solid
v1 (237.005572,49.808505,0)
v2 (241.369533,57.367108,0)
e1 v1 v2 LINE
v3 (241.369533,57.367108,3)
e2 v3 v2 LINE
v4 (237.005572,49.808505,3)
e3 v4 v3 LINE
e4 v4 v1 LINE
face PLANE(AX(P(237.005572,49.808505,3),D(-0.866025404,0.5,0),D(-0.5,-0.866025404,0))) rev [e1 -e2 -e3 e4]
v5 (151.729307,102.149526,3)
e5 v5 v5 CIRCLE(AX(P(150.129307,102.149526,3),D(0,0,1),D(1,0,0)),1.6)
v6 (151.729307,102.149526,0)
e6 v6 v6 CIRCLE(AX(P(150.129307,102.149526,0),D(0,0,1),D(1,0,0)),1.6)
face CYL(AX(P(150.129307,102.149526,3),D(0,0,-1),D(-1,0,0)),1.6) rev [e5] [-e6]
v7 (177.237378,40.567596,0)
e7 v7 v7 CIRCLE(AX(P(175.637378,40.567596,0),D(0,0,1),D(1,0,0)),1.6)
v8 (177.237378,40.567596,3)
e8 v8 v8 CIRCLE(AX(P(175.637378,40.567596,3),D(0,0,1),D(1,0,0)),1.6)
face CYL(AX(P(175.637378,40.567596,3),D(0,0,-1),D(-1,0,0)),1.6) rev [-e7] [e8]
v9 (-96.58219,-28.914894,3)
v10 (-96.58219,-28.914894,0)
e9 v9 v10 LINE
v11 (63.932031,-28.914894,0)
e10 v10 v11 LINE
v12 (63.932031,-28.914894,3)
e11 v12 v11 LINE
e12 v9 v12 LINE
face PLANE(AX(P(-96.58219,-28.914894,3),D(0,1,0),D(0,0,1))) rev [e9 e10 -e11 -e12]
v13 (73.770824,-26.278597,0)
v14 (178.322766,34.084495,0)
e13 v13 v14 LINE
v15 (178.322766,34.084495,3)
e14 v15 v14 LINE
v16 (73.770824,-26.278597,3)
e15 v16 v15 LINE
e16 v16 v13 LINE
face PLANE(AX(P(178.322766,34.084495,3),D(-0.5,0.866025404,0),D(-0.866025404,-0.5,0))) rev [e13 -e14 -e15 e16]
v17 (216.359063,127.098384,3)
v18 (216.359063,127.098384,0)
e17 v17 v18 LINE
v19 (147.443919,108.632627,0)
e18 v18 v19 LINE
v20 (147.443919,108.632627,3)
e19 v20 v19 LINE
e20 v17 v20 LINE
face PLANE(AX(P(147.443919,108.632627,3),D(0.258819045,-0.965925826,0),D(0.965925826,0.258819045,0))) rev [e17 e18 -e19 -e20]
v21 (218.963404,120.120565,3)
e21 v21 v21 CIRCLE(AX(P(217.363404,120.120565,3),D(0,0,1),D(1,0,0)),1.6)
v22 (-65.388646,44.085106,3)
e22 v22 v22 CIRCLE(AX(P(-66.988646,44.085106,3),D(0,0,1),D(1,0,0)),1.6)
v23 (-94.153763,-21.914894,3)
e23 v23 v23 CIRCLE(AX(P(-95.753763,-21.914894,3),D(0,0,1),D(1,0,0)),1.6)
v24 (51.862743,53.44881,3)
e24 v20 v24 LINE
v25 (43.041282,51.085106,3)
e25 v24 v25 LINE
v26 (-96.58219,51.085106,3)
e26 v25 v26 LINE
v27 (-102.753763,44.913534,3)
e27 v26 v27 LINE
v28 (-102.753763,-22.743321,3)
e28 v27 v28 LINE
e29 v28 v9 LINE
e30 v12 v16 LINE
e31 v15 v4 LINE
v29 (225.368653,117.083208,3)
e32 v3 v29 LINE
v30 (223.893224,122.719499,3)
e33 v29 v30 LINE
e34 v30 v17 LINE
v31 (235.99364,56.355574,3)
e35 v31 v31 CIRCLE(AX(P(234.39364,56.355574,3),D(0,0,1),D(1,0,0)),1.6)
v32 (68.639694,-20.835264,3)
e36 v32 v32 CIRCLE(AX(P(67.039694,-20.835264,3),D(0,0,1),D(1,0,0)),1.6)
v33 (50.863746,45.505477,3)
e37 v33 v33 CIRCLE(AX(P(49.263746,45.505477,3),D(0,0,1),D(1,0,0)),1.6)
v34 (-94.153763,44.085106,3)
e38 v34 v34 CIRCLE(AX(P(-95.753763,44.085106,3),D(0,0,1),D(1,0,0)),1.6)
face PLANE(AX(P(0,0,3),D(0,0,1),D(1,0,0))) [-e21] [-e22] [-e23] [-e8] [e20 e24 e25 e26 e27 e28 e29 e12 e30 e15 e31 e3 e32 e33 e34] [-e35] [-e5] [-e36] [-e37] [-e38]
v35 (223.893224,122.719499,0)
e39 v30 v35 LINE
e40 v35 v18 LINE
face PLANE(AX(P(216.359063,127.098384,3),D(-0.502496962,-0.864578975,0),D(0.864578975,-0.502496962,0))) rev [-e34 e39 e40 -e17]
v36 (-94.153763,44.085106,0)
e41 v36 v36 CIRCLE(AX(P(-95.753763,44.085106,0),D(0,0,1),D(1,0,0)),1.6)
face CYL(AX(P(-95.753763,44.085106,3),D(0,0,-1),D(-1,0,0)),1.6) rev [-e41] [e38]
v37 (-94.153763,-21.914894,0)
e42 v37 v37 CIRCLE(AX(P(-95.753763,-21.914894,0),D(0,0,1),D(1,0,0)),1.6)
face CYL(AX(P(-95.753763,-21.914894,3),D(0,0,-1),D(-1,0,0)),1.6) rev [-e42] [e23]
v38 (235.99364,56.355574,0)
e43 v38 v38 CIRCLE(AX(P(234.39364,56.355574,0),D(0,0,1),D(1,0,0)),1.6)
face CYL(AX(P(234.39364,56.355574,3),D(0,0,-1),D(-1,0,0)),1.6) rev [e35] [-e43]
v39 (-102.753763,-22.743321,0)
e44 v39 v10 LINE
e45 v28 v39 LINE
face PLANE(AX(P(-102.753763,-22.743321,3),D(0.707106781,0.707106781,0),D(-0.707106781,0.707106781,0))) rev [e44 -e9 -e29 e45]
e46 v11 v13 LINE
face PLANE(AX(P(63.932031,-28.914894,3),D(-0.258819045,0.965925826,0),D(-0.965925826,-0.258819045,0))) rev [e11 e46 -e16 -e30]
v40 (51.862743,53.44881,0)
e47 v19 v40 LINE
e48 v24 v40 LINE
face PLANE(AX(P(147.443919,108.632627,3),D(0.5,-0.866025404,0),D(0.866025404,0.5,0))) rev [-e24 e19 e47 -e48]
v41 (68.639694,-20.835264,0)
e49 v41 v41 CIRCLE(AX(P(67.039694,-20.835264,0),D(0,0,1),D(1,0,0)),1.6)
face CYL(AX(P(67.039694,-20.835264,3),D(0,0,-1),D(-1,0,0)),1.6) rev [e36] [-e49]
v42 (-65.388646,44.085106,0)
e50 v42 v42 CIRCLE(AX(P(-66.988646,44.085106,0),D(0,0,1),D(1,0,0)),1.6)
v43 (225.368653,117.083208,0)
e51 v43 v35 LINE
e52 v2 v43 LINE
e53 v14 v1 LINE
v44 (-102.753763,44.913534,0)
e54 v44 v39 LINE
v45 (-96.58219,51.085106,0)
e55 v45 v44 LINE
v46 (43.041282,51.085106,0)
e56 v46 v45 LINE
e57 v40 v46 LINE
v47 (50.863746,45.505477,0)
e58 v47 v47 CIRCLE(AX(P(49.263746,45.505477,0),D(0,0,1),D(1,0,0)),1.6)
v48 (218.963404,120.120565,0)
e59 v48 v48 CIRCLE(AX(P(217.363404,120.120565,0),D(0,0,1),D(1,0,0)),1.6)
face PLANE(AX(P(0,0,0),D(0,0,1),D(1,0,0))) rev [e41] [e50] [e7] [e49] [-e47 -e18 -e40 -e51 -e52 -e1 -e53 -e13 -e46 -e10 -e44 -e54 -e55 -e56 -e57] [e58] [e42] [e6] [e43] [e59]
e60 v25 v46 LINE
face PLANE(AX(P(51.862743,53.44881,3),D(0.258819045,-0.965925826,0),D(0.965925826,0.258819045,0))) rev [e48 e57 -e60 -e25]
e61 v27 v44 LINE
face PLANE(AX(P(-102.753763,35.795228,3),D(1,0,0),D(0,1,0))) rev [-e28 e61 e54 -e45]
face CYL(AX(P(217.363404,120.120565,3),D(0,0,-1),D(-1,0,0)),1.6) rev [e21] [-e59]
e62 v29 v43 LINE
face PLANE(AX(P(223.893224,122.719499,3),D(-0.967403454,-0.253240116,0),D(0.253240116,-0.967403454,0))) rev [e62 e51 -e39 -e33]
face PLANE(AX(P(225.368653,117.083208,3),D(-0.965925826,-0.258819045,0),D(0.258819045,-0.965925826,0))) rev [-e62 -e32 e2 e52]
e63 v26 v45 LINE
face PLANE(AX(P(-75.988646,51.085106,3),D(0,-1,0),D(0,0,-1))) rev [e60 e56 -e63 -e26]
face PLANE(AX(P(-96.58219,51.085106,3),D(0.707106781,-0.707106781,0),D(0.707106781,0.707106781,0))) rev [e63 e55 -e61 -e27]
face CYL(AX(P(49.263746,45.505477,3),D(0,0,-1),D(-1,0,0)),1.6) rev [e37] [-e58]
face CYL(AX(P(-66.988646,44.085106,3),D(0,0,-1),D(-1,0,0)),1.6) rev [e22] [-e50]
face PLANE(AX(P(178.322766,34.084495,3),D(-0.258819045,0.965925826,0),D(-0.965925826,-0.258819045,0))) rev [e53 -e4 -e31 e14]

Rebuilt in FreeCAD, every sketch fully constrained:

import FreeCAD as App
import Part
import Sketcher

V = App.Vector
Q = App.Units.Quantity


def add_polygon(sketch, points):
    """Adds a closed chain of lines whose ends are joined by coincident constraints."""
    first, n = sketch.GeometryCount, len(points)
    for a, b in zip(points, points[1:] + points[:1]):
        sketch.addGeometry(Part.LineSegment(App.Vector(*a, 0), App.Vector(*b, 0)), False)
    for i in range(n):
        sketch.addConstraint(Sketcher.Constraint("Coincident", first + i, 2, first + (i + 1) % n, 1))

doc = App.newDocument("Part")
body = doc.addObject("PartDesign::Body", "Body")

sketch1 = body.newObject("Sketcher::SketchObject", "Sketch")
sketch1.AttachmentSupport = (doc.getObject("XY_Plane"), [""])
sketch1.MapMode = "FlatFace"
add_polygon(sketch1, [(-96.58219, 51.085106), (-102.753763, 44.913534), (-102.753763, -22.743321), (-96.58219, -28.914894), (63.932031, -28.914894), (73.770824, -26.278597), (178.322766, 34.084495), (237.005572, 49.808505), (241.369533, 57.367108), (230.025902, 99.702117), (225.368653, 117.083208), (223.893224, 122.719499), (216.359063, 127.098384), (210.67022, 125.574064), (147.443919, 108.632627), (51.862743, 53.44881), (43.041282, 51.085106)])
sketch1.addGeometry(Part.Circle(V(-95.753763, -21.914894, 0), V(0, 0, 1), 1.6), False)
sketch1.addGeometry(Part.Circle(V(67.039694, -20.835264, 0), V(0, 0, 1), 1.6), False)
sketch1.addGeometry(Part.Circle(V(-95.753763, 44.085106, 0), V(0, 0, 1), 1.6), False)
sketch1.addGeometry(Part.Circle(V(-66.988646, 44.085106, 0), V(0, 0, 1), 1.6), False)
sketch1.addGeometry(Part.Circle(V(49.263746, 45.505477, 0), V(0, 0, 1), 1.6), False)
sketch1.addGeometry(Part.Circle(V(175.637378, 40.567596, 0), V(0, 0, 1), 1.6), False)
sketch1.addGeometry(Part.Circle(V(234.39364, 56.355574, 0), V(0, 0, 1), 1.6), False)
sketch1.addGeometry(Part.Circle(V(150.129307, 102.149526, 0), V(0, 0, 1), 1.6), False)
sketch1.addGeometry(Part.Circle(V(217.363404, 120.120565, 0), V(0, 0, 1), 1.6), False)
sketch1.addConstraint(Sketcher.Constraint("Vertical", 1))
sketch1.addConstraint(Sketcher.Constraint("Horizontal", 3))
sketch1.addConstraint(Sketcher.Constraint("Horizontal", 16))
sketch1.addConstraint(Sketcher.Constraint("Equal", 17, 18))
sketch1.addConstraint(Sketcher.Constraint("Equal", 18, 19))
sketch1.addConstraint(Sketcher.Constraint("Equal", 19, 20))
sketch1.addConstraint(Sketcher.Constraint("Equal", 20, 21))
sketch1.addConstraint(Sketcher.Constraint("Equal", 21, 22))
sketch1.addConstraint(Sketcher.Constraint("Equal", 22, 23))
sketch1.addConstraint(Sketcher.Constraint("Equal", 23, 24))
sketch1.addConstraint(Sketcher.Constraint("Equal", 24, 25))
sketch1.addConstraint(Sketcher.Constraint("Perpendicular", 0, 2))
sketch1.addConstraint(Sketcher.Constraint("Parallel", 4, 6))
sketch1.addConstraint(Sketcher.Constraint("Perpendicular", 6, 8))
sketch1.addConstraint(Sketcher.Constraint("Parallel", 8, 9))
sketch1.addConstraint(Sketcher.Constraint("Perpendicular", 9, 12))
sketch1.addConstraint(Sketcher.Constraint("Parallel", 12, 13))
sketch1.addConstraint(Sketcher.Constraint("Parallel", 5, 14))
sketch1.addConstraint(Sketcher.Constraint("Parallel", 13, 15))
sketch1.addConstraint(Sketcher.Constraint("Horizontal", 19, 3, 20, 3))
sketch1.addConstraint(Sketcher.Constraint("Vertical", 17, 3, 19, 3))
sketch1.addConstraint(Sketcher.Constraint("Vertical", 2, 2, 16, 2))
sketch1.addConstraint(Sketcher.Constraint("Equal", 0, 2))
sketch1.addConstraint(Sketcher.Constraint("Equal", 2, 7))
sketch1.addConstraint(Sketcher.Constraint("Diameter", 17, Q("3.2 mm")))
sketch1.addConstraint(Sketcher.Constraint("Angle", 4, Q("15 deg")))
sketch1.addConstraint(Sketcher.Constraint("Angle", 5, Q("30 deg")))
sketch1.addConstraint(Sketcher.Constraint("Angle", 7, Q("60 deg")))
sketch1.addConstraint(Sketcher.Constraint("DistanceY", 17, 3, 19, 3, Q("66 mm")))
sketch1.addConstraint(Sketcher.Constraint("DistanceX", 0, 2, 19, 3, Q("7 mm")))
sketch1.addConstraint(Sketcher.Constraint("DistanceY", 2, 2, 17, 3, Q("7 mm")))
sketch1.addConstraint(Sketcher.Constraint("DistanceY", 3, 2, 15, 2, Q("80 mm")))
sketch1.addConstraint(Sketcher.Constraint("DistanceX", 3, 1, 3, 2, Q("160.514221 mm")))
sketch1.addConstraint(Sketcher.Constraint("DistanceX", 16, 2, 16, 1, Q("139.623472 mm")))
sketch1.addConstraint(Sketcher.Constraint("DistanceX", -1, 1, 8, 2, Q("230.025902 mm")))
sketch1.addConstraint(Sketcher.Constraint("DistanceY", -1, 1, 10, 2, Q("122.719499 mm")))
sketch1.addConstraint(Sketcher.Constraint("DistanceY", 5, 2, 22, 3, Q("6.483101 mm")))
sketch1.addConstraint(Sketcher.Constraint("DistanceY", 7, 2, 9, 2, Q("59.7161 mm")))
sketch1.addConstraint(Sketcher.Constraint("DistanceY", 25, 3, 12, 2, Q("5.453498 mm")))
sketch1.addConstraint(Sketcher.Constraint("DistanceY", 24, 3, 13, 2, Q("6.483101 mm")))
sketch1.addConstraint(Sketcher.Constraint("DistanceX", 13, 2, 12, 2, Q("63.226302 mm")))
sketch1.addConstraint(Sketcher.Constraint("Distance", 4, Q("10.185868 mm")))
sketch1.addConstraint(Sketcher.Constraint("Distance", 6, Q("60.752912 mm")))
sketch1.addConstraint(Sketcher.Constraint("Distance", 9, Q("17.994229 mm")))
sketch1.addConstraint(Sketcher.Constraint("Distance", 15, Q("9.132648 mm")))
sketch1.addConstraint(Sketcher.Constraint("DistanceY", 1, 2, 1, 1, Q("67.656854 mm")))
sketch1.addConstraint(Sketcher.Constraint("DistanceX", -1, 1, 23, 3, Q("234.39364 mm")))
sketch1.addConstraint(Sketcher.Constraint("DistanceY", 1, 2, -1, 1, Q("22.743321 mm")))
sketch1.addConstraint(Sketcher.Constraint("DistanceX", 2, 2, -1, 1, Q("96.58219 mm")))
sketch1.addConstraint(Sketcher.Constraint("DistanceX", -1, 1, 12, 2, Q("210.67022 mm")))
sketch1.addConstraint(Sketcher.Constraint("DistanceY", 17, 3, 18, 3, Q("1.079629 mm")))
sketch1.addConstraint(Sketcher.Constraint("DistanceX", 20, 3, 18, 3, Q("134.02834 mm")))
sketch1.addConstraint(Sketcher.Constraint("DistanceX", 21, 3, 18, 3, Q("17.775948 mm")))
sketch1.addConstraint(Sketcher.Constraint("DistanceY", 18, 3, 21, 3, Q("66.340742 mm")))
sketch1.addConstraint(Sketcher.Constraint("DistanceX", 19, 3, 21, 3, Q("145.017509 mm")))
sketch1.addConstraint(Sketcher.Constraint("DistanceX", 21, 3, 22, 3, Q("126.373632 mm")))
sketch1.addConstraint(Sketcher.Constraint("DistanceY", 18, 3, 23, 3, Q("77.190838 mm")))
sketch1.addConstraint(Sketcher.Constraint("DistanceX", 24, 3, 22, 3, Q("25.508071 mm")))
sketch1.addConstraint(Sketcher.Constraint("DistanceX", 18, 3, 25, 3, Q("150.32371 mm")))
sketch1.addConstraint(Sketcher.Constraint("DistanceX", 10, 2, 9, 2, Q("1.475429 mm")))
sketch1.addConstraint(Sketcher.Constraint("DistanceX", 11, 2, 25, 3, Q("1.00434 mm")))
pad1 = body.newObject("PartDesign::Pad", "Pad")
pad1.Profile = sketch1
pad1.Length = 3

doc.recompute()
